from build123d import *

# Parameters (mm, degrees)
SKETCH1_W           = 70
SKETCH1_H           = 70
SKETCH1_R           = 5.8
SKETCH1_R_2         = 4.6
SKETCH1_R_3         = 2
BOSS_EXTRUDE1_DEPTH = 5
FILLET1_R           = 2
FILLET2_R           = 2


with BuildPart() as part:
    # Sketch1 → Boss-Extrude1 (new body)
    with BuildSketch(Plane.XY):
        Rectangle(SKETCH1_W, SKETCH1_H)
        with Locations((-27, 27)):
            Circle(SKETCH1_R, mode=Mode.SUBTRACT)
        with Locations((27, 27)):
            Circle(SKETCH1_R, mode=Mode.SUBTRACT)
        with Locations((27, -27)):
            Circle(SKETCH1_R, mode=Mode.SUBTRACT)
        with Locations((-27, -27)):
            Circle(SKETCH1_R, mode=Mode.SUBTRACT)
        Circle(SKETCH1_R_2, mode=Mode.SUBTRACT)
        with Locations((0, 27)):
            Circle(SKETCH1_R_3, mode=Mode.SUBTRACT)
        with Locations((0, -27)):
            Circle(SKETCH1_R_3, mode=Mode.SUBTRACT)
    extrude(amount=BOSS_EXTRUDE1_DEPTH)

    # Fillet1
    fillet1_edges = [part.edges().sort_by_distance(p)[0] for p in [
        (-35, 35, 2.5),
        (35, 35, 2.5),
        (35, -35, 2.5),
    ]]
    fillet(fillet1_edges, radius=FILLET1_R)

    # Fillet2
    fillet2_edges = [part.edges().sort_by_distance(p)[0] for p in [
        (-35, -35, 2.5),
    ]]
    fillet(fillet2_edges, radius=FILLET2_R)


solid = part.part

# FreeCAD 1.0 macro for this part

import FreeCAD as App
import Part
import Sketcher

V = App.Vector
Q = App.Units.Quantity


def edges_at(feature, points):
    """Names of the edges that pass closest to the given points."""
    edges = feature.Shape.Edges
    near = lambda p: min(range(len(edges)), key=lambda i: edges[i].distToShape(Part.Vertex(*p))[0])
    return sorted({f"Edge{near(p) + 1}" for p in points})

doc = App.newDocument("Part")
body = doc.addObject("PartDesign::Body", "Body")

sketch1 = body.newObject("Sketcher::SketchObject", "Sketch")
sketch1.AttachmentSupport = (doc.getObject("XY_Plane"), [""])
sketch1.MapMode = "FlatFace"
sketch1.addGeometry([
    Part.LineSegment(V(-35, 35, 0), V(-35, -35, 0)),
    Part.LineSegment(V(-35, -35, 0), V(35, -35, 0)),
    Part.LineSegment(V(35, -35, 0), V(35, 35, 0)),
    Part.LineSegment(V(35, 35, 0), V(-35, 35, 0)),
    Part.Circle(V(-27, -27, 0), V(0, 0, 1), 5.8),
    Part.Circle(V(0, -27, 0), V(0, 0, 1), 2),
    Part.Circle(V(27, -27, 0), V(0, 0, 1), 5.8),
    Part.Circle(V(-27, 27, 0), V(0, 0, 1), 5.8),
    Part.Circle(V(0, 0, 0), V(0, 0, 1), 4.6),
    Part.Circle(V(0, 27, 0), V(0, 0, 1), 2),
    Part.Circle(V(27, 27, 0), V(0, 0, 1), 5.8),
], False)
sketch1.addConstraint([
    Sketcher.Constraint("Coincident", 0, 2, 1, 1),
    Sketcher.Constraint("Coincident", 1, 2, 2, 1),
    Sketcher.Constraint("Coincident", 2, 2, 3, 1),
    Sketcher.Constraint("Coincident", 3, 2, 0, 1),
    Sketcher.Constraint("Vertical", 0),
    Sketcher.Constraint("Horizontal", 1),
    Sketcher.Constraint("Vertical", 2),
    Sketcher.Constraint("Horizontal", 3),
    Sketcher.Constraint("Coincident", 8, 3, -1, 1),
    Sketcher.Constraint("Equal", 4, 6),
    Sketcher.Constraint("Equal", 6, 7),
    Sketcher.Constraint("Equal", 5, 9),
    Sketcher.Constraint("Equal", 7, 10),
    Sketcher.Constraint("Symmetric", 6, 3, 7, 3, -1, 1),
    Sketcher.Constraint("Symmetric", 5, 3, 9, 3, -1, 1),
    Sketcher.Constraint("Symmetric", 4, 3, 10, 3, -1, 1),
    Sketcher.Constraint("Symmetric", 0, 2, 2, 2, -1, 1),
    Sketcher.Constraint("Symmetric", 4, 3, 6, 3, -2),
    Sketcher.Constraint("PointOnObject", 5, 3, -2),
    Sketcher.Constraint("Horizontal", 4, 3, 5, 3),
    Sketcher.Constraint("Equal", 3, 0),
    Sketcher.Constraint("Diameter", 5, Q("4 mm")),
    Sketcher.Constraint("Diameter", 4, Q("11.6 mm")),
    Sketcher.Constraint("Diameter", 8, Q("9.2 mm")),
    Sketcher.Constraint("DistanceX", 1, 1, 1, 2, Q("70 mm")),
    Sketcher.Constraint("DistanceX", 4, 3, -1, 1, Q("27 mm")),
    Sketcher.Constraint("DistanceY", 4, 3, -1, 1, Q("27 mm")),
])
pad1 = body.newObject("PartDesign::Pad", "Pad")
pad1.Profile = sketch1
pad1.Length = 5
doc.recompute()

fillet = body.newObject("PartDesign::Fillet", "Fillet")
fillet.Base = (pad1, edges_at(pad1, [(-35, 35, 2.5), (35, 35, 2.5), (35, -35, 2.5)]))
fillet.Radius = 2
doc.recompute()

fillet2 = body.newObject("PartDesign::Fillet", "Fillet001")
fillet2.Base = (fillet, edges_at(fillet, [(-35, -35, 2.5)]))
fillet2.Radius = 2

doc.recompute()
